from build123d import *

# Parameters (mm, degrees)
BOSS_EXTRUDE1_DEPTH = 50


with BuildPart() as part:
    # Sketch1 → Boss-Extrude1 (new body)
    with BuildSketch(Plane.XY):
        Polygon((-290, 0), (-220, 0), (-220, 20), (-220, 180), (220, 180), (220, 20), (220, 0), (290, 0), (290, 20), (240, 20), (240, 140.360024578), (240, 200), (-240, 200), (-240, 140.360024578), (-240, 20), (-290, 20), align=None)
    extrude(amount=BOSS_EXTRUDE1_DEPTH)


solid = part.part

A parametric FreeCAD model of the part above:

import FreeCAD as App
import Part
import Sketcher


def add_polygon(sketch, points):
    """Adds a closed chain of lines whose ends are joined by coincident constraints."""
    first, n = sketch.GeometryCount, len(points)
    for a, b in zip(points, points[1:] + points[:1]):
        sketch.addGeometry(Part.LineSegment(App.Vector(*a, 0), App.Vector(*b, 0)), False)
    for i in range(n):
        sketch.addConstraint(Sketcher.Constraint("Coincident", first + i, 2, first + (i + 1) % n, 1))

doc = App.newDocument("Part")
body = doc.addObject("PartDesign::Body", "Body")

# Sketch on XY plane
sketch1 = body.newObject("Sketcher::SketchObject", "Sketch")
sketch1.AttachmentSupport = (doc.getObject("XY_Plane"), [""])
sketch1.MapMode = "FlatFace"
add_polygon(sketch1, [(-290, 0), (-220, 0), (-220, 180), (220, 180), (220, 0), (290, 0), (290, 20), (240, 20), (240, 200), (-240, 200), (-240, 20), (-290, 20)])  # lines 0-11
sketch1.addConstraint(Sketcher.Constraint("Horizontal", 0))
sketch1.addConstraint(Sketcher.Constraint("Vertical", 1))
sketch1.addConstraint(Sketcher.Constraint("Horizontal", 2))
sketch1.addConstraint(Sketcher.Constraint("Vertical", 3))
sketch1.addConstraint(Sketcher.Constraint("Horizontal", 4))
sketch1.addConstraint(Sketcher.Constraint("Vertical", 5))
sketch1.addConstraint(Sketcher.Constraint("Horizontal", 6))
sketch1.addConstraint(Sketcher.Constraint("Vertical", 7))
sketch1.addConstraint(Sketcher.Constraint("Horizontal", 8))
sketch1.addConstraint(Sketcher.Constraint("Vertical", 9))
sketch1.addConstraint(Sketcher.Constraint("Horizontal", 10))
sketch1.addConstraint(Sketcher.Constraint("Vertical", 11))
sketch1.addConstraint(Sketcher.Constraint("Symmetric", 0, 2, 3, 2, -1, 1))
sketch1.addConstraint(Sketcher.Constraint("Symmetric", 6, 2, 9, 2, -2))
sketch1.addConstraint(Sketcher.Constraint("Symmetric", 4, 2, 11, 2, -2))
sketch1.addConstraint(Sketcher.Constraint("Equal", 3, 7))
sketch1.addConstraint(Sketcher.Constraint("DistanceX", 0, 1, 0, 2, 70.0))
sketch1.addConstraint(Sketcher.Constraint("DistanceX", 2, 1, 2, 2, 440.0))
sketch1.addConstraint(Sketcher.Constraint("DistanceX", 6, 2, 6, 1, 50.0))
sketch1.addConstraint(Sketcher.Constraint("DistanceY", 1, 1, 1, 2, 180.0))
sketch1.addConstraint(Sketcher.Constraint("DistanceY", 5, 1, 5, 2, 20.0))
pad1 = body.newObject("PartDesign::Pad", "Pad")
pad1.Profile = sketch1
pad1.Length = 50

doc.recompute()
